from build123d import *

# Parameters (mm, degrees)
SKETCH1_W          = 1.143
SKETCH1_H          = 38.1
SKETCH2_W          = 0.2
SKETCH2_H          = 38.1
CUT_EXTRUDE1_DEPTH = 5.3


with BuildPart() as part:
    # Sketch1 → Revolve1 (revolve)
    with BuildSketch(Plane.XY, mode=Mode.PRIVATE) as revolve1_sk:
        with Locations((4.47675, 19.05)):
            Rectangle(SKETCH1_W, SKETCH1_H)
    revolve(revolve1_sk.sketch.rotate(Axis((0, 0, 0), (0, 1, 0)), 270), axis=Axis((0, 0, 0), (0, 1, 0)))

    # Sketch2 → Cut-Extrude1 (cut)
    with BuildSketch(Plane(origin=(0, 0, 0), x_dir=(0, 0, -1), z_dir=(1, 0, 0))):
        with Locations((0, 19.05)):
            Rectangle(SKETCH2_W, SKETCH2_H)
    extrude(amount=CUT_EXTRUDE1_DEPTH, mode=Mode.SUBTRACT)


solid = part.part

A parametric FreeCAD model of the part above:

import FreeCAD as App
import Part
import Sketcher
from FreeCAD import Vector
Q = App.Units.Quantity

doc = App.newDocument("Part")
body = doc.addObject("PartDesign::Body", "Body")

# Sketch on XY plane
sketch1 = doc.addObject("Sketcher::SketchObject", "Sketch")
body.addObject(sketch1)
sketch1.AttachmentSupport = (doc.XY_Plane, [""])
sketch1.MapMode = "FlatFace"
sketch1.addGeometry([
    Part.LineSegment(Vector(3.90525, 38.1, 0), Vector(3.90525, 0, 0)),
    Part.LineSegment(Vector(3.90525, 0, 0), Vector(5.04825, 0, 0)),
    Part.LineSegment(Vector(5.04825, 0, 0), Vector(5.04825, 38.1, 0)),
    Part.LineSegment(Vector(5.04825, 38.1, 0), Vector(3.90525, 38.1, 0)),
], False)
sketch1.addConstraint([
    Sketcher.Constraint("Coincident", 0, 2, 1, 1),
    Sketcher.Constraint("Coincident", 1, 2, 2, 1),
    Sketcher.Constraint("Coincident", 2, 2, 3, 1),
    Sketcher.Constraint("Coincident", 3, 2, 0, 1),
    Sketcher.Constraint("Vertical", 0),
    Sketcher.Constraint("Horizontal", 1),
    Sketcher.Constraint("Vertical", 2),
    Sketcher.Constraint("Horizontal", 3),
    Sketcher.Constraint("PointOnObject", 0, 2, -1),
    Sketcher.Constraint("DistanceY", 0, 2, 0, 1, Q("38.1 mm")),
    Sketcher.Constraint("DistanceX", 1, 1, 1, 2, Q("1.143 mm")),
    Sketcher.Constraint("DistanceX", -1, 1, 0, 2, Q("3.90525 mm")),
])
revolution = doc.addObject("PartDesign::Revolution", "Revolution")
body.addObject(revolution)
revolution.Profile = sketch1
revolution.ReferenceAxis = (sketch1, ["V_Axis"])
revolution.Angle = 360

# Sketch on YZ plane
sketch2 = doc.addObject("Sketcher::SketchObject", "Sketch001")
body.addObject(sketch2)
sketch2.AttachmentSupport = (doc.YZ_Plane, [""])
sketch2.MapMode = "FlatFace"
sketch2.addGeometry([
    Part.LineSegment(Vector(38.1, 0.1, 0), Vector(0, 0.1, 0)),
    Part.LineSegment(Vector(0, 0.1, 0), Vector(0, -0.1, 0)),
    Part.LineSegment(Vector(0, -0.1, 0), Vector(38.1, -0.1, 0)),
    Part.LineSegment(Vector(38.1, -0.1, 0), Vector(38.1, 0.1, 0)),
], False)
sketch2.addConstraint([
    Sketcher.Constraint("Coincident", 0, 2, 1, 1),
    Sketcher.Constraint("Coincident", 1, 2, 2, 1),
    Sketcher.Constraint("Coincident", 2, 2, 3, 1),
    Sketcher.Constraint("Coincident", 3, 2, 0, 1),
    Sketcher.Constraint("Horizontal", 0),
    Sketcher.Constraint("Vertical", 1),
    Sketcher.Constraint("Horizontal", 2),
    Sketcher.Constraint("Vertical", 3),
    Sketcher.Constraint("Symmetric", 0, 2, 1, 2, -1, 1),
    Sketcher.Constraint("DistanceX", 0, 2, 0, 1, Q("38.1 mm")),
    Sketcher.Constraint("DistanceY", 1, 2, 1, 1, Q("0.2 mm")),
])
pocket1 = doc.addObject("PartDesign::Pocket", "Pocket")
body.addObject(pocket1)
pocket1.Profile = sketch2
pocket1.Length = 5.3
pocket1.Reversed = True

doc.recompute()
